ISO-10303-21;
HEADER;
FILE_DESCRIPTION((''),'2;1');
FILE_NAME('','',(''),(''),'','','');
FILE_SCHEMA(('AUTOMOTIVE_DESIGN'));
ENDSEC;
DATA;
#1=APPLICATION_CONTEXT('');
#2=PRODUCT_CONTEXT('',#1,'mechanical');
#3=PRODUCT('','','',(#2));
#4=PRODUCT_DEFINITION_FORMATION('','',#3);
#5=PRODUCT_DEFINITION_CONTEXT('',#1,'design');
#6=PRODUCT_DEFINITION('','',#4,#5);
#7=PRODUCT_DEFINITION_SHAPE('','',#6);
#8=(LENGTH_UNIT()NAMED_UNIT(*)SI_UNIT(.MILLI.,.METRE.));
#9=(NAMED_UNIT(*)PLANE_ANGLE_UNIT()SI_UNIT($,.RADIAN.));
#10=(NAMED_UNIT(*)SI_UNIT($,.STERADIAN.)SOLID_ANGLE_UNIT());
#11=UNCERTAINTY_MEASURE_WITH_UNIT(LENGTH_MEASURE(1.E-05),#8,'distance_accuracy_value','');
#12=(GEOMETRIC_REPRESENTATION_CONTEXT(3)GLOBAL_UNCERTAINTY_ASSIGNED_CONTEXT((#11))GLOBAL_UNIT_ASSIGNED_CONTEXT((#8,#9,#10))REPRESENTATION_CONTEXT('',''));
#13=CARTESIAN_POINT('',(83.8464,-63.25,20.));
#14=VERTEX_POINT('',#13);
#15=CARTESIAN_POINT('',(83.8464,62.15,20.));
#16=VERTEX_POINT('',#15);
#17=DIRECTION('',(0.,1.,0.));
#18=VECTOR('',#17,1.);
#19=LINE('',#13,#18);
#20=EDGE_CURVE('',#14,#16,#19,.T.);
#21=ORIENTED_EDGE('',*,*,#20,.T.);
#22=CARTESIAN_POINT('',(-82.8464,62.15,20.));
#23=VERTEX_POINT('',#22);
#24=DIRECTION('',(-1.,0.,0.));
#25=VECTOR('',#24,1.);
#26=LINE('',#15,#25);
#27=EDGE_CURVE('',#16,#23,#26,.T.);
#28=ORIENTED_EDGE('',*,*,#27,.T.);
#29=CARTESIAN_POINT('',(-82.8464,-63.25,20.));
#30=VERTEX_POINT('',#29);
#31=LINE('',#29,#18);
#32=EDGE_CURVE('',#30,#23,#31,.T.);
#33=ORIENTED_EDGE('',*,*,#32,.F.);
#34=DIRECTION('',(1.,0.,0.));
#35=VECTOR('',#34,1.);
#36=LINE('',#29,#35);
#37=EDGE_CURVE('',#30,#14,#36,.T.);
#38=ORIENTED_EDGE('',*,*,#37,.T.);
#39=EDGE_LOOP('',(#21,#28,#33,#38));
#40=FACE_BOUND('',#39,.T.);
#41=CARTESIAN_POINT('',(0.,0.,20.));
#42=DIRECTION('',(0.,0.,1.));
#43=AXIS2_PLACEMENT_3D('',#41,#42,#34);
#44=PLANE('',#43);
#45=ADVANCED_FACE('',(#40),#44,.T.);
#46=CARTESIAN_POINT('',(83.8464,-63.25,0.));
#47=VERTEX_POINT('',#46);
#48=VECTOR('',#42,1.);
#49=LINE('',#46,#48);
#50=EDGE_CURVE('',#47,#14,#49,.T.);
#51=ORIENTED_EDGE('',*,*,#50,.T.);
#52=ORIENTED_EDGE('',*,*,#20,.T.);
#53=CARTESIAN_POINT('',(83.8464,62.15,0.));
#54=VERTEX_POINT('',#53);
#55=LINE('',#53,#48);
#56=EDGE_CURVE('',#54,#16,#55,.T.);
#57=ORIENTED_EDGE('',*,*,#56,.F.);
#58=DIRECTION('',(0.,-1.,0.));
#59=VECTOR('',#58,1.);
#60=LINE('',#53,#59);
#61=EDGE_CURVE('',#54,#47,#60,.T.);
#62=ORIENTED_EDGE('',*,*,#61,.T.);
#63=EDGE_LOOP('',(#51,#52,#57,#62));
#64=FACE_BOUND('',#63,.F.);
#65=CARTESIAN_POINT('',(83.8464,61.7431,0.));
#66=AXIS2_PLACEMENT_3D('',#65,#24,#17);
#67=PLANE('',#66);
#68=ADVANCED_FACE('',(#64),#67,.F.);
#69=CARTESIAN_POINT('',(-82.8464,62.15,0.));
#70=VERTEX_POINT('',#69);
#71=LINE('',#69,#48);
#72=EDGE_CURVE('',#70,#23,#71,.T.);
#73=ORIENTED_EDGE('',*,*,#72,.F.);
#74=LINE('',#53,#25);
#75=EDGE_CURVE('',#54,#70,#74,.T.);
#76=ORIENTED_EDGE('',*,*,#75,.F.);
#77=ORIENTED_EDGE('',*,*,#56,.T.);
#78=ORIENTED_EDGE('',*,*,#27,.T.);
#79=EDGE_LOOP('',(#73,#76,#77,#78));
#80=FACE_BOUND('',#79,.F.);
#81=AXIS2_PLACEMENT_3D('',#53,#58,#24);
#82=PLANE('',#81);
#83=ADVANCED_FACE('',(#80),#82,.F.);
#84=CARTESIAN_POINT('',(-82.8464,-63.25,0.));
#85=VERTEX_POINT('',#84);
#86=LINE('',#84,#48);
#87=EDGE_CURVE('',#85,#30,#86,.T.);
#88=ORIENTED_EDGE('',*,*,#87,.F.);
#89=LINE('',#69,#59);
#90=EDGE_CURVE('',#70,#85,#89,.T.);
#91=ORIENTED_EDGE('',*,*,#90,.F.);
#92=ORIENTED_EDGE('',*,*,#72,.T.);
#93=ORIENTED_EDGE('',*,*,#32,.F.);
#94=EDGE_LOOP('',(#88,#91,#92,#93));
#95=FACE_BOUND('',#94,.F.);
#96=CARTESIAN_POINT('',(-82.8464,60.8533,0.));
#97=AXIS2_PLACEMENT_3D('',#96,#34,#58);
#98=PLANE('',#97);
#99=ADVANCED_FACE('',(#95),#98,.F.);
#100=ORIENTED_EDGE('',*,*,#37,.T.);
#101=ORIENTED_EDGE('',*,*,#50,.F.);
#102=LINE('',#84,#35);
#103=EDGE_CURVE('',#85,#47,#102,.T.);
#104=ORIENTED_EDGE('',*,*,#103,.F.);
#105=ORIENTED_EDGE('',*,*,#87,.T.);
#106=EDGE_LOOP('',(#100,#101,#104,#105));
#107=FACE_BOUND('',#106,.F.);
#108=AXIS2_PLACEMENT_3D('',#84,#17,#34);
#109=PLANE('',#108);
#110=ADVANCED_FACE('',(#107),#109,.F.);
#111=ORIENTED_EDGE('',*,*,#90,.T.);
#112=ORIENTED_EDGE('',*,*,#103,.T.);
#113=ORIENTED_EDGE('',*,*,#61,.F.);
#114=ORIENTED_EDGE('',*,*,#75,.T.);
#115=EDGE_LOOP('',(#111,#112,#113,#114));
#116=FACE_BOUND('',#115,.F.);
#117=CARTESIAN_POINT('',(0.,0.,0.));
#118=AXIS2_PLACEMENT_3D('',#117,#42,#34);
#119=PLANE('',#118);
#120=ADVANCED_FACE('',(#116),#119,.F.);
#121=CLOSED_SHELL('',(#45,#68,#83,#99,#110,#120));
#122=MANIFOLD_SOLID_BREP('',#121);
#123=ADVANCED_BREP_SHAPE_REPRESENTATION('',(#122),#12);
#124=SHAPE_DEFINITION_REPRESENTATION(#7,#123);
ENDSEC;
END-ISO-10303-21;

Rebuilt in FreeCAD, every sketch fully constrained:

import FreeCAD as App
import Part
import Sketcher

V = App.Vector
Q = App.Units.Quantity


def add_polygon(sketch, points):
    """Adds a closed chain of lines whose ends are joined by coincident constraints."""
    first, n = sketch.GeometryCount, len(points)
    for a, b in zip(points, points[1:] + points[:1]):
        sketch.addGeometry(Part.LineSegment(App.Vector(*a, 0), App.Vector(*b, 0)), False)
    for i in range(n):
        sketch.addConstraint(Sketcher.Constraint("Coincident", first + i, 2, first + (i + 1) % n, 1))

doc = App.newDocument("Part")
params = doc.addObject("Spreadsheet::Sheet", "Params")
for row, (alias, value) in enumerate([
    ("sketch1_height", "4.937 in"),
    ("pad1_length", "0.7874016 in"),
], start=1):
    params.set(f"A{row}", alias)
    params.set(f"B{row}", "=" + value)
    params.setAlias(f"B{row}", alias)

body = doc.addObject("PartDesign::Body", "Body")

# Sketch on XY plane
sketch1 = doc.addObject("Sketcher::SketchObject", "Sketch")
body.addObject(sketch1)
sketch1.AttachmentSupport = (doc.XY_Plane, [""])
sketch1.MapMode = "FlatFace"
add_polygon(sketch1, [(-82.8464, -63.25), (83.8464, -63.25), (83.8464, 62.15), (-82.8464, 62.15)])  # lines 0-3
sketch1.addConstraint([
    Sketcher.Constraint("Horizontal", 0),
    Sketcher.Constraint("Vertical", 1),
    Sketcher.Constraint("Horizontal", 2),
    Sketcher.Constraint("Vertical", 3),
    Sketcher.Constraint("DistanceY", 1, 1, 1, 2, Q("4.937 in")),
    Sketcher.Constraint("DistanceX", 0, 1, 0, 2, Q("6.5627 in")),
    Sketcher.Constraint("DistanceX", -1, 1, 0, 2, 83.8464),
    Sketcher.Constraint("DistanceY", 0, 2, -1, 1, 63.25),
])
sketch1.setExpression("Constraints[8]", "Params.sketch1_height")
pad1 = doc.addObject("PartDesign::Pad", "Pad")
body.addObject(pad1)
pad1.Profile = sketch1
pad1.setExpression("Length", "Params.pad1_length")

doc.recompute()
